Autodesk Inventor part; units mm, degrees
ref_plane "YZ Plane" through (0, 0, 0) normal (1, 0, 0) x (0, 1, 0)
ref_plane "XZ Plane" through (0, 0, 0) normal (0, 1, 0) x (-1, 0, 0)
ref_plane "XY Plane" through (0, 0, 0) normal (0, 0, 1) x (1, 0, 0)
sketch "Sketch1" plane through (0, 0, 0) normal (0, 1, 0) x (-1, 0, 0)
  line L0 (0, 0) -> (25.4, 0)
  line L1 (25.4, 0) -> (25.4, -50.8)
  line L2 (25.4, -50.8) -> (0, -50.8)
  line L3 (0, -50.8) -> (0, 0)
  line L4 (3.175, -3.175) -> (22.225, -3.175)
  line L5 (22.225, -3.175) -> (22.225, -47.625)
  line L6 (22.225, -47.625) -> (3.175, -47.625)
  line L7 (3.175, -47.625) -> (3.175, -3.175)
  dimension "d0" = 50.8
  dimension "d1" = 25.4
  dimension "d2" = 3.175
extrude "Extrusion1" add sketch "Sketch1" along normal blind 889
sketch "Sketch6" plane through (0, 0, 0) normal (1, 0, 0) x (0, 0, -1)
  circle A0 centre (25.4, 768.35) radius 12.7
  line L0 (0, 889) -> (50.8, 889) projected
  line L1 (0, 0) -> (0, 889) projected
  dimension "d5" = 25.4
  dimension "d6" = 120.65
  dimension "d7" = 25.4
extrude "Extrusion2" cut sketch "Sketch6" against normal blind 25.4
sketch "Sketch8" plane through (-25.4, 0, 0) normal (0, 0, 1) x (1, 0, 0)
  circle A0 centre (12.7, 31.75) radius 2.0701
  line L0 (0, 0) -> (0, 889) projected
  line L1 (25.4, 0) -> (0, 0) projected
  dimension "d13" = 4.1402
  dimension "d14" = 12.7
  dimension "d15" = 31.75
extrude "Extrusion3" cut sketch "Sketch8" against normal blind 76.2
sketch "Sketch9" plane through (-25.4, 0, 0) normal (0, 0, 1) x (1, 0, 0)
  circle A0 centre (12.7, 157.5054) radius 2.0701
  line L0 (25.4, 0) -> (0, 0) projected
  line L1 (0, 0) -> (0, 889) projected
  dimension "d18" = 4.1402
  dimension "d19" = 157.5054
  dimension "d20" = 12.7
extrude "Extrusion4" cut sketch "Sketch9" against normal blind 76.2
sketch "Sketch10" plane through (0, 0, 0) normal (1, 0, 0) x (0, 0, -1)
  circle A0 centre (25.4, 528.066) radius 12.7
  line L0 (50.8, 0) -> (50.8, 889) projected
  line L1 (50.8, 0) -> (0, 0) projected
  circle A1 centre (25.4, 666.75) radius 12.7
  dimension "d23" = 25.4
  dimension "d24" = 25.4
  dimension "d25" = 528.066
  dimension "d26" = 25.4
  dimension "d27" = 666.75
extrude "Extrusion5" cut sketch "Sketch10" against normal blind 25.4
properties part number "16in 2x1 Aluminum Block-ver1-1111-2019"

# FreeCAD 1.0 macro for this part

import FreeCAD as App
import Part
import Sketcher

V = App.Vector
Q = App.Units.Quantity


def add_polygon(sketch, points):
    """Adds a closed chain of lines whose ends are joined by coincident constraints."""
    first, n = sketch.GeometryCount, len(points)
    for a, b in zip(points, points[1:] + points[:1]):
        sketch.addGeometry(Part.LineSegment(App.Vector(*a, 0), App.Vector(*b, 0)), False)
    for i in range(n):
        sketch.addConstraint(Sketcher.Constraint("Coincident", first + i, 2, first + (i + 1) % n, 1))

doc = App.newDocument("Part")
body = doc.addObject("PartDesign::Body", "Body")

sketch1 = body.newObject("Sketcher::SketchObject", "Sketch")
sketch1.AttachmentSupport = (doc.getObject("XZ_Plane"), [""])
sketch1.MapMode = "FlatFace"
add_polygon(sketch1, [(-25, 0), (0, 0), (0, -51), (-25, -51)])
add_polygon(sketch1, [(-3, -48), (-3, -3), (-22, -3), (-22, -48)])
sketch1.addConstraint([
    Sketcher.Constraint("Horizontal", 0),
    Sketcher.Constraint("Vertical", 1),
    Sketcher.Constraint("Horizontal", 2),
    Sketcher.Constraint("Vertical", 3),
    Sketcher.Constraint("Vertical", 4),
    Sketcher.Constraint("Horizontal", 5),
    Sketcher.Constraint("Vertical", 6),
    Sketcher.Constraint("Horizontal", 7),
    Sketcher.Constraint("Coincident", 0, 2, -1, 1),
    Sketcher.Constraint("DistanceX", 0, 1, 0, 2, Q("1 in")),
    Sketcher.Constraint("DistanceY", 1, 2, 1, 1, Q("2 in")),
    Sketcher.Constraint("DistanceX", 4, 2, -1, 1, Q("0.125 in")),
    Sketcher.Constraint("DistanceY", 4, 2, -1, 1, Q("0.125 in")),
    Sketcher.Constraint("DistanceX", 3, 2, 5, 2, Q("0.125 in")),
    Sketcher.Constraint("DistanceY", 2, 2, 6, 2, Q("0.125 in")),
])
pad1 = body.newObject("PartDesign::Pad", "Pad")
pad1.Profile = sketch1
pad1.Length = Q("35 in")
pad1.Reversed = True

sketch2 = body.newObject("Sketcher::SketchObject", "Sketch001")
sketch2.AttachmentSupport = (doc.getObject("YZ_Plane"), [""])
sketch2.MapMode = "FlatFace"
sketch2.addGeometry(Part.Circle(V(768, -25, 0), V(0, 0, 1), 13), False)
sketch2.addConstraint([
    Sketcher.Constraint("Diameter", 0, Q("1 in")),
    Sketcher.Constraint("DistanceY", 0, 3, -1, 1, Q("1 in")),
    Sketcher.Constraint("DistanceX", -1, 1, 0, 3, Q("30.25 in")),
])
pocket1 = body.newObject("PartDesign::Pocket", "Pocket")
pocket1.Profile = sketch2
pocket1.Length = Q("1 in")

sketch3 = body.newObject("Sketcher::SketchObject", "Sketch002")
sketch3.AttachmentSupport = (doc.getObject("XY_Plane"), [""])
sketch3.MapMode = "FlatFace"
sketch3.addGeometry(Part.Circle(V(-12.7, 31.8, 0), V(0, 0, 1), 2.1), False)
sketch3.addConstraint([
    Sketcher.Constraint("Diameter", 0, Q("0.163 in")),
    Sketcher.Constraint("DistanceX", 0, 3, -1, 1, Q("0.5 in")),
    Sketcher.Constraint("DistanceY", -1, 1, 0, 3, Q("1.25 in")),
])
pocket2 = body.newObject("PartDesign::Pocket", "Pocket001")
pocket2.Profile = sketch3
pocket2.Length = Q("3 in")

sketch4 = body.newObject("Sketcher::SketchObject", "Sketch003")
sketch4.AttachmentSupport = (doc.getObject("XY_Plane"), [""])
sketch4.MapMode = "FlatFace"
sketch4.addGeometry(Part.Circle(V(-12.7, 157.5, 0), V(0, 0, 1), 2.1), False)
sketch4.addConstraint([
    Sketcher.Constraint("Diameter", 0, Q("0.163 in")),
    Sketcher.Constraint("DistanceX", 0, 3, -1, 1, Q("0.5 in")),
    Sketcher.Constraint("DistanceY", -1, 1, 0, 3, Q("6.201 in")),
])
pocket3 = body.newObject("PartDesign::Pocket", "Pocket002")
pocket3.Profile = sketch4
pocket3.Length = Q("3 in")

sketch5 = body.newObject("Sketcher::SketchObject", "Sketch004")
sketch5.AttachmentSupport = (doc.getObject("YZ_Plane"), [""])
sketch5.MapMode = "FlatFace"
sketch5.addGeometry([
    Part.Circle(V(528, -25, 0), V(0, 0, 1), 13),
    Part.Circle(V(667, -25, 0), V(0, 0, 1), 13),
], False)
sketch5.addConstraint([
    Sketcher.Constraint("Equal", 0, 1),
    Sketcher.Constraint("Horizontal", 0, 3, 1, 3),
    Sketcher.Constraint("Diameter", 0, Q("1 in")),
    Sketcher.Constraint("DistanceY", 0, 3, -1, 1, Q("1 in")),
    Sketcher.Constraint("DistanceX", -1, 1, 0, 3, Q("20.79 in")),
    Sketcher.Constraint("DistanceX", -1, 1, 1, 3, Q("26.25 in")),
])
pocket4 = body.newObject("PartDesign::Pocket", "Pocket003")
pocket4.Profile = sketch5
pocket4.Length = Q("1 in")

doc.recompute()
